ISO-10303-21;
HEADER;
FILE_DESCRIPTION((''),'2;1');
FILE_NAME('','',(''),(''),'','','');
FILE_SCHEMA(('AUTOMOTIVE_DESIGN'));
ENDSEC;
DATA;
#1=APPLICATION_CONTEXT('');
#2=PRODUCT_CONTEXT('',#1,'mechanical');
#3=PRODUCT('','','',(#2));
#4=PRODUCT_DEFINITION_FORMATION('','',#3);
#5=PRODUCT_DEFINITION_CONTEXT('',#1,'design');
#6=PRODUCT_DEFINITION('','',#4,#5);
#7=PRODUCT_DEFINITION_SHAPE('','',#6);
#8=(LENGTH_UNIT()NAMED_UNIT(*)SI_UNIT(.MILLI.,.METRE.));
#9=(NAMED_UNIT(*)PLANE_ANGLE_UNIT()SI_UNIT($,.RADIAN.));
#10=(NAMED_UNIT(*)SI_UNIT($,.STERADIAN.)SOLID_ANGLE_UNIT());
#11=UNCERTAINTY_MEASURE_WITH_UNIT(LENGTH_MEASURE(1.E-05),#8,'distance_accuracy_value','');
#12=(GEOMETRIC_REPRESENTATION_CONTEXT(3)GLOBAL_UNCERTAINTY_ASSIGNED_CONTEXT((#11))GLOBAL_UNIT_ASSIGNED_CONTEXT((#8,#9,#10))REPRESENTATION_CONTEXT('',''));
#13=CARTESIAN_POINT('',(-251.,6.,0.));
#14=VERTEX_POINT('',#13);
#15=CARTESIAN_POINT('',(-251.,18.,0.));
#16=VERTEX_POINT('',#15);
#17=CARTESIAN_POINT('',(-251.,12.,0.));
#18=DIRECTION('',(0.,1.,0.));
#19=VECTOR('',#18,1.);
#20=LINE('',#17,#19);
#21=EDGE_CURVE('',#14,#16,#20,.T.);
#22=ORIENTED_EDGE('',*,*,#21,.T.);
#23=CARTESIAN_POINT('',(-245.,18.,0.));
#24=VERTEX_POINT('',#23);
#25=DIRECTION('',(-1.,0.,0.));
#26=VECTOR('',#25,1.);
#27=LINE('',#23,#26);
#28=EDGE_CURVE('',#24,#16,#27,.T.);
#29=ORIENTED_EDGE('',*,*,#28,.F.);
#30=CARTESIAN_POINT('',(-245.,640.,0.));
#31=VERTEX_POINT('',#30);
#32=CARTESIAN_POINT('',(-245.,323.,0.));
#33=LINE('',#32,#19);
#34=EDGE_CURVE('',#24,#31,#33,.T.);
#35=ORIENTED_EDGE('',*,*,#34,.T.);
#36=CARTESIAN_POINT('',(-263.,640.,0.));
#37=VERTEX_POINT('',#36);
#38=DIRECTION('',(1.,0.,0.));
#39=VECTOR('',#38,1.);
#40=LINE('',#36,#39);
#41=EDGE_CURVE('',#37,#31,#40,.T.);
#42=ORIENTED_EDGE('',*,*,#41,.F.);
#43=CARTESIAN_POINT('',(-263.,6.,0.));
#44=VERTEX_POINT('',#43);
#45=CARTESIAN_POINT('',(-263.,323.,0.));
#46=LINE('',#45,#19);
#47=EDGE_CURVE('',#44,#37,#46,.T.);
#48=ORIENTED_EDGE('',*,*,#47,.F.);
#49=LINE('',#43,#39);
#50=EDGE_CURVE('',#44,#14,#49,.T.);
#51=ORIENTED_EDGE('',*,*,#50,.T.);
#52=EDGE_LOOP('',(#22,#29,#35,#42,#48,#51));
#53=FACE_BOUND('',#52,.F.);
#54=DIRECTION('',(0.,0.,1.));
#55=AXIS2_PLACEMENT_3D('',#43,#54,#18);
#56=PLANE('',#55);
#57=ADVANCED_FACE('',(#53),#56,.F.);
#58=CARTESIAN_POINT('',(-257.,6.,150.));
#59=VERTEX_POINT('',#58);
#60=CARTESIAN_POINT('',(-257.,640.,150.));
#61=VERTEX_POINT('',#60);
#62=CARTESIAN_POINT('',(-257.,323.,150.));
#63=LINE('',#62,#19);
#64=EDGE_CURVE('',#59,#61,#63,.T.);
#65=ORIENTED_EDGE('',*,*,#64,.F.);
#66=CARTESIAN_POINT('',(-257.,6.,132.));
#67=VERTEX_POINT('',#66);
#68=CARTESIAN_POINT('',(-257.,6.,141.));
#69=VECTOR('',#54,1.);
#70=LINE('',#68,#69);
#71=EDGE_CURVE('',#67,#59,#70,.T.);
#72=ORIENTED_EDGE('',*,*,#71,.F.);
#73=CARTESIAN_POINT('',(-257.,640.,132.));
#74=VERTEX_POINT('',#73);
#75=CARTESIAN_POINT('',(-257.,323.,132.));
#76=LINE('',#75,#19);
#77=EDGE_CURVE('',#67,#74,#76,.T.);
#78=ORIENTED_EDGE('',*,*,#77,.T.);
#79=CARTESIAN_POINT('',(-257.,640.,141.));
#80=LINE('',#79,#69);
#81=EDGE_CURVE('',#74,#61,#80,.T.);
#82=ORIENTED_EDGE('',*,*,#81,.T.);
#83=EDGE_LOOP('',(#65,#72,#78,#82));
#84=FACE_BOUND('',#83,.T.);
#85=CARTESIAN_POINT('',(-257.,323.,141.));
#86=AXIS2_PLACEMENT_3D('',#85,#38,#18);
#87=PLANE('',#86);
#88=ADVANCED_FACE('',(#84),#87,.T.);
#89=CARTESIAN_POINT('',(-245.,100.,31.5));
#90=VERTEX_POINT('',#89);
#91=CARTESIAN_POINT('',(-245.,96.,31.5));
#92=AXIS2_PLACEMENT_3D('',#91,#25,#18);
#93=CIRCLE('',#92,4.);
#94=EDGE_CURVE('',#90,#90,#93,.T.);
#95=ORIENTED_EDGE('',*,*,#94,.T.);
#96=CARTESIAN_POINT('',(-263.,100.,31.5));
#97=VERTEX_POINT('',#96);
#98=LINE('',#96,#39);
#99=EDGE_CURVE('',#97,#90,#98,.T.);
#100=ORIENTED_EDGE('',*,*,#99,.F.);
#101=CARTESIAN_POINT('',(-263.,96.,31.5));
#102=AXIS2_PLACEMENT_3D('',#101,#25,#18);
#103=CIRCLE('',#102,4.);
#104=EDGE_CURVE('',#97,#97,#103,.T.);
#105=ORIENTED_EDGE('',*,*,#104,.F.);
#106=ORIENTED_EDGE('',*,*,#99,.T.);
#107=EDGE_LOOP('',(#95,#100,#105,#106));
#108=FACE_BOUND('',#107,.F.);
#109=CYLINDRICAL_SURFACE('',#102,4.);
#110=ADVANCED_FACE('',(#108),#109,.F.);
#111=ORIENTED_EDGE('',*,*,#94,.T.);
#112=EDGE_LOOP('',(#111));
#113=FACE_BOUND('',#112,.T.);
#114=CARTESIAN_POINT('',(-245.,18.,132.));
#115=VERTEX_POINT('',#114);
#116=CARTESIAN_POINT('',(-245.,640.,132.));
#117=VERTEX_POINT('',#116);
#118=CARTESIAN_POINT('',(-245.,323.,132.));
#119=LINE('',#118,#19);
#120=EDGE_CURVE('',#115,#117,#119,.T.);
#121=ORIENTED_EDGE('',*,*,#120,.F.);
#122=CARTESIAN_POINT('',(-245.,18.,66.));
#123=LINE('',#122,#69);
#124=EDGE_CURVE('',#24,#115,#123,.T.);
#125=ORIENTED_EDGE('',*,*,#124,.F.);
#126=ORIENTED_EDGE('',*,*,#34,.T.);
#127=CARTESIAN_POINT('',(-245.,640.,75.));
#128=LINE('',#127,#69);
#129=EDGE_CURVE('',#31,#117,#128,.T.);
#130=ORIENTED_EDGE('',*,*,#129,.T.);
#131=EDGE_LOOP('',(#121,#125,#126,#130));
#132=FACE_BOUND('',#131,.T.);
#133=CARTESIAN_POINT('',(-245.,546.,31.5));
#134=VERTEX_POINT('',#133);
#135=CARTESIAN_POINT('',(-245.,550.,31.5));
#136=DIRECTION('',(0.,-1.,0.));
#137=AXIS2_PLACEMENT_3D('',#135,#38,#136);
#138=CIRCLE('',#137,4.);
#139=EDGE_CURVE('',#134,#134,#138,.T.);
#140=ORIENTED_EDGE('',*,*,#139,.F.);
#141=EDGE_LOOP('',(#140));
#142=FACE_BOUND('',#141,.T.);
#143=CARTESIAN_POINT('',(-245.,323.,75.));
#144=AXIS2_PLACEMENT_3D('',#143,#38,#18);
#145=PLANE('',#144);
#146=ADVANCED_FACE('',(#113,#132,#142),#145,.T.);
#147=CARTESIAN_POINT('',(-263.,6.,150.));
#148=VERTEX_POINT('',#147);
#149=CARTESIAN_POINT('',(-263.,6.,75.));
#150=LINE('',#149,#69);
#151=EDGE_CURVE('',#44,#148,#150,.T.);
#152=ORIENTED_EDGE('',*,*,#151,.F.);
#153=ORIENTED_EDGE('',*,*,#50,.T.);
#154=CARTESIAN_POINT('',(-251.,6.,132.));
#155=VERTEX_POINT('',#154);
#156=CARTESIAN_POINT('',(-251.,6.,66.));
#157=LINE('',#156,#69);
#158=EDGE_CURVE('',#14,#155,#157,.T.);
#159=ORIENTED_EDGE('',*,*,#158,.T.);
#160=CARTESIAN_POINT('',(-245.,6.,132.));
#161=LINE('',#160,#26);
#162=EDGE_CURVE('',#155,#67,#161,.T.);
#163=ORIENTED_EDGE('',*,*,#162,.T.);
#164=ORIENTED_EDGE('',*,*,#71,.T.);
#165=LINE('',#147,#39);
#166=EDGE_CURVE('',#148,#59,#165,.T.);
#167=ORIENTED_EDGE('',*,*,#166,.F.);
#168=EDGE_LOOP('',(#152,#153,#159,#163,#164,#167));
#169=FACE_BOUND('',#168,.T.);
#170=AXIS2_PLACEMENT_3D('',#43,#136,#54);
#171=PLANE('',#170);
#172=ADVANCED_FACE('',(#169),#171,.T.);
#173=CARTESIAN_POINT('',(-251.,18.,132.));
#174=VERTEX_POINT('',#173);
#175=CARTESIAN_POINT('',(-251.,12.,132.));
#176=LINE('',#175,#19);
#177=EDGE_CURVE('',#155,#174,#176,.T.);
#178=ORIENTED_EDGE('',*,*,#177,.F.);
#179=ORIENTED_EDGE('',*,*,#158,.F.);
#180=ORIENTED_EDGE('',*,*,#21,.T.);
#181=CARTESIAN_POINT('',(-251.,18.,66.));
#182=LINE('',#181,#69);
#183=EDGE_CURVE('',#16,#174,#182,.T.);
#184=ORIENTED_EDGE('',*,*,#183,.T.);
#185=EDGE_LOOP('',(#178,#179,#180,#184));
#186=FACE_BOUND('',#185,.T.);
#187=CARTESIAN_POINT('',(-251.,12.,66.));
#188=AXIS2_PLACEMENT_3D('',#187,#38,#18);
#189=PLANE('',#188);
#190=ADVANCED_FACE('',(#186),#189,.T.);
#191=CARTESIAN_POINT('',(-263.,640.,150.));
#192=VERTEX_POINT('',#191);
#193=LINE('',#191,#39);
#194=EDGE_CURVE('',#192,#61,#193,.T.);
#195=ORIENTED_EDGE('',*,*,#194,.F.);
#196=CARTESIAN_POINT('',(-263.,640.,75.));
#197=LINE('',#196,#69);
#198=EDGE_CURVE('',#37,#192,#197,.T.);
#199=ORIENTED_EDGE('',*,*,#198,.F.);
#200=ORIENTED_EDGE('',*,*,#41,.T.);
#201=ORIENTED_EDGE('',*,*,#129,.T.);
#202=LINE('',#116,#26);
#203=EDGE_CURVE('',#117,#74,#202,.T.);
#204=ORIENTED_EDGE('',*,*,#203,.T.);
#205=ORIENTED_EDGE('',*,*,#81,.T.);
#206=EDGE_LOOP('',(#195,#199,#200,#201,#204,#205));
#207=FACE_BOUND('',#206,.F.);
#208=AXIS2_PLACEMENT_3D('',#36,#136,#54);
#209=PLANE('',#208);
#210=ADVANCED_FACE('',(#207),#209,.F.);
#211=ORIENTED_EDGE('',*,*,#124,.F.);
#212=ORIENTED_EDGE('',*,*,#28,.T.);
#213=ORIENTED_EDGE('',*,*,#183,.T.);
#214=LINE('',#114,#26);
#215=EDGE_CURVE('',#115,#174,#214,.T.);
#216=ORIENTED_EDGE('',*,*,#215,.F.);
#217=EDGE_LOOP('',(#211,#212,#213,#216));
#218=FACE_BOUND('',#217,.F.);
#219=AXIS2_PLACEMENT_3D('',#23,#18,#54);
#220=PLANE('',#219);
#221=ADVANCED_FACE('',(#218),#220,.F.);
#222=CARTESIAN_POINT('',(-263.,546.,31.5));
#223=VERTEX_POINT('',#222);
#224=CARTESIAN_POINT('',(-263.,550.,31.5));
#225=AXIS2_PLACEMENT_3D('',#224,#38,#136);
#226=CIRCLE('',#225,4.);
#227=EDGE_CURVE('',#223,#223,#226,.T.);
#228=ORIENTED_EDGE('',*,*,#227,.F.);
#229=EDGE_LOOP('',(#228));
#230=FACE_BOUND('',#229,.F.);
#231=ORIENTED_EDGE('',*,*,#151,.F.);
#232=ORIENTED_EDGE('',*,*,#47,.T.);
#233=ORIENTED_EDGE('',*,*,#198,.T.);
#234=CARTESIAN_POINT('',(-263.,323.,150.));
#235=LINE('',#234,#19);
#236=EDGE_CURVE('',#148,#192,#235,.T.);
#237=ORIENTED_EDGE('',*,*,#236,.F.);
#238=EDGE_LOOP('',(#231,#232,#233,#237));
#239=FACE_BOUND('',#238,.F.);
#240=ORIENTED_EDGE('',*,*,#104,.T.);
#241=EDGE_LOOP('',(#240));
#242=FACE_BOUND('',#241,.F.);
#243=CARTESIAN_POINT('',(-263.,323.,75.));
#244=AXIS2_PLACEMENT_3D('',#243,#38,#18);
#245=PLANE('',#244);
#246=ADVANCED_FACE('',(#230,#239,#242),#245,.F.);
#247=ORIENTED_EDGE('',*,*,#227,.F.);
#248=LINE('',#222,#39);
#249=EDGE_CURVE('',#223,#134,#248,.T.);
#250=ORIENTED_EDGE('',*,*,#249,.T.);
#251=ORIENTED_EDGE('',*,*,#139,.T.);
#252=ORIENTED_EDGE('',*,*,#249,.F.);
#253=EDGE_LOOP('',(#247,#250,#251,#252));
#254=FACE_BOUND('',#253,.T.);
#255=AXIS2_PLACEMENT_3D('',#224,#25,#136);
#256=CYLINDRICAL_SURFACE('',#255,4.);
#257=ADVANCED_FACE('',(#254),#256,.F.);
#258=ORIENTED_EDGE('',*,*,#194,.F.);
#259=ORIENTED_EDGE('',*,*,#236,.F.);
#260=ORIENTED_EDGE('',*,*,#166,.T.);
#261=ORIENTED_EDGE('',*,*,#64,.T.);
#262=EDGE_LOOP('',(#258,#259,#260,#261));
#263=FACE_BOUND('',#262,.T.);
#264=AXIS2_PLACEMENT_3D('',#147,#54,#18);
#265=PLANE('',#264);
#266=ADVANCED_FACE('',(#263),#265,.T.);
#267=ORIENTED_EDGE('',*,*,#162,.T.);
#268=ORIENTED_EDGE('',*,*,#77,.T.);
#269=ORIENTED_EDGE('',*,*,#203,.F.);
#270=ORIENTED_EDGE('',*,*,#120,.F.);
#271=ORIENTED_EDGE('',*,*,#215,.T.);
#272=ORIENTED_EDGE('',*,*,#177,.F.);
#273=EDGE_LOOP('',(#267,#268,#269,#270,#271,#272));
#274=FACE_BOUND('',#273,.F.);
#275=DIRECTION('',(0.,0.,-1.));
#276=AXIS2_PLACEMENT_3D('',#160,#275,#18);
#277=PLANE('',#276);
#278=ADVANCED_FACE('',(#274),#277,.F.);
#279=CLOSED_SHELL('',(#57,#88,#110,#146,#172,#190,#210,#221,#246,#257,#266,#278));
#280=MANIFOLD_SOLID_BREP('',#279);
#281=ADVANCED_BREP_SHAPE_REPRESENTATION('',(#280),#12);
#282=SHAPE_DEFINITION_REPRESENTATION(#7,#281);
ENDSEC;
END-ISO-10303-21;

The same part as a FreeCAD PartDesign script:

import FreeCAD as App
import Part
import Sketcher
Q = App.Units.Quantity

doc = App.newDocument("Part")
body = doc.addObject("PartDesign::Body", "Body")

sketch1 = body.newObject("Sketcher::SketchObject", "Sketch")
sketch1.AttachmentSupport = (doc.getObject("XY_Plane"), [""])
sketch1.MapMode = "FlatFace"
sketch1.addGeometry([
    Part.LineSegment(App.Vector(-317, 150, 0), App.Vector(-317, 0, 0)),
    Part.LineSegment(App.Vector(-317, 0, 0), App.Vector(317, 0, 0)),
    Part.LineSegment(App.Vector(317, 0, 0), App.Vector(317, 150, 0)),
    Part.LineSegment(App.Vector(317, 150, 0), App.Vector(-317, 150, 0)),
], False)
sketch1.addConstraint([
    Sketcher.Constraint("Coincident", 0, 2, 1, 1),
    Sketcher.Constraint("Coincident", 1, 2, 2, 1),
    Sketcher.Constraint("Coincident", 2, 2, 3, 1),
    Sketcher.Constraint("Coincident", 3, 2, 0, 1),
    Sketcher.Constraint("Vertical", 0),
    Sketcher.Constraint("Horizontal", 1),
    Sketcher.Constraint("Vertical", 2),
    Sketcher.Constraint("Horizontal", 3),
    Sketcher.Constraint("Symmetric", 0, 2, 1, 2, -1, 1),
    Sketcher.Constraint("DistanceX", 1, 1, 1, 2, Q("634 mm")),
    Sketcher.Constraint("DistanceY", 0, 2, 0, 1, Q("150 mm")),
])
pad1 = body.newObject("PartDesign::Pad", "Pad")
pad1.Profile = sketch1
pad1.Length = 18

sketch2 = body.newObject("Sketcher::SketchObject", "Sketch001")
sketch2.AttachmentSupport = (doc.getObject("XY_Plane"), [""])
sketch2.MapMode = "FlatFace"
sketch2.AttachmentOffset = App.Placement(App.Vector(0, 0, 18), App.Rotation())
sketch2.addGeometry([
    Part.LineSegment(App.Vector(-317, 150, 0), App.Vector(-317, 132, 0)),
    Part.LineSegment(App.Vector(-317, 132, 0), App.Vector(317, 132, 0)),
    Part.LineSegment(App.Vector(317, 132, 0), App.Vector(317, 150, 0)),
    Part.LineSegment(App.Vector(317, 150, 0), App.Vector(-317, 150, 0)),
], False)
sketch2.addConstraint([
    Sketcher.Constraint("Coincident", 0, 2, 1, 1),
    Sketcher.Constraint("Coincident", 1, 2, 2, 1),
    Sketcher.Constraint("Coincident", 2, 2, 3, 1),
    Sketcher.Constraint("Coincident", 3, 2, 0, 1),
    Sketcher.Constraint("Vertical", 0),
    Sketcher.Constraint("Horizontal", 1),
    Sketcher.Constraint("Vertical", 2),
    Sketcher.Constraint("Horizontal", 3),
    Sketcher.Constraint("DistanceX", 1, 1, 1, 2, Q("634 mm")),
    Sketcher.Constraint("DistanceY", 0, 2, 0, 1, Q("18 mm")),
    Sketcher.Constraint("DistanceX", 0, 2, -1, 1, Q("317 mm")),
    Sketcher.Constraint("DistanceY", -1, 1, 0, 2, Q("132 mm")),
])
pocket1 = body.newObject("PartDesign::Pocket", "Pocket")
pocket1.Profile = sketch2
pocket1.Length = 12

sketch3 = body.newObject("Sketcher::SketchObject", "Sketch002")
sketch3.AttachmentSupport = (doc.getObject("XY_Plane"), [""])
sketch3.MapMode = "FlatFace"
sketch3.AttachmentOffset = App.Placement(App.Vector(0, 0, 18), App.Rotation())
sketch3.addGeometry([
    Part.LineSegment(App.Vector(-317, 132, 0), App.Vector(-317, 0, 0)),
    Part.LineSegment(App.Vector(-317, 0, 0), App.Vector(-305, 0, 0)),
    Part.LineSegment(App.Vector(-305, 0, 0), App.Vector(-305, 132, 0)),
    Part.LineSegment(App.Vector(-305, 132, 0), App.Vector(-317, 132, 0)),
], False)
sketch3.addConstraint([
    Sketcher.Constraint("Coincident", 0, 2, 1, 1),
    Sketcher.Constraint("Coincident", 1, 2, 2, 1),
    Sketcher.Constraint("Coincident", 2, 2, 3, 1),
    Sketcher.Constraint("Coincident", 3, 2, 0, 1),
    Sketcher.Constraint("Vertical", 0),
    Sketcher.Constraint("Horizontal", 1),
    Sketcher.Constraint("Vertical", 2),
    Sketcher.Constraint("Horizontal", 3),
    Sketcher.Constraint("PointOnObject", 0, 2, -1),
    Sketcher.Constraint("DistanceX", 1, 1, 1, 2, Q("12 mm")),
    Sketcher.Constraint("DistanceY", 0, 2, 0, 1, Q("132 mm")),
    Sketcher.Constraint("DistanceX", 0, 2, -1, 1, Q("317 mm")),
])
pocket2 = body.newObject("PartDesign::Pocket", "Pocket001")
pocket2.Profile = sketch3
pocket2.Length = 6

sketch4 = body.newObject("Sketcher::SketchObject", "Sketch003")
sketch4.AttachmentSupport = (doc.getObject("XY_Plane"), [""])
sketch4.MapMode = "FlatFace"
sketch4.addGeometry(Part.Circle(App.Vector(-227, 31.5, 0), App.Vector(0, 0, 1), 4), False)
sketch4.addConstraint([
    Sketcher.Constraint("Diameter", 0, Q("8 mm")),
    Sketcher.Constraint("DistanceX", 0, 3, -1, 1, Q("227 mm")),
    Sketcher.Constraint("DistanceY", -1, 1, 0, 3, Q("31.5 mm")),
])
pocket3 = body.newObject("PartDesign::Pocket", "Pocket002")
pocket3.Profile = sketch4
pocket3.Length = 18
pocket3.Reversed = True
doc.recompute()

mirrored = body.newObject("PartDesign::Mirrored", "Mirrored")
mirrored.Originals = [pocket3]
mirrored.MirrorPlane = (doc.getObject("YZ_Plane"), [""])
body.Tip = mirrored
body2 = doc.addObject("PartDesign::Body", "Body001")
doc.recompute()

body.Placement = App.Placement(App.Vector(0, 0, 0), App.Rotation(App.Vector(1, 0, 0), 90))
boolean = body2.newObject("PartDesign::Boolean", "Boolean")
boolean.Type = "Fuse"
boolean.addObjects([body])
body3 = doc.addObject("PartDesign::Body", "Body002")
doc.recompute()

body2.Placement = App.Placement(App.Vector(-263, 323, 0), App.Rotation(App.Vector(0, 0, 1), 90))
boolean2 = body3.newObject("PartDesign::Boolean", "Boolean001")
boolean2.Type = "Fuse"
boolean2.addObjects([body2])

doc.recompute()
